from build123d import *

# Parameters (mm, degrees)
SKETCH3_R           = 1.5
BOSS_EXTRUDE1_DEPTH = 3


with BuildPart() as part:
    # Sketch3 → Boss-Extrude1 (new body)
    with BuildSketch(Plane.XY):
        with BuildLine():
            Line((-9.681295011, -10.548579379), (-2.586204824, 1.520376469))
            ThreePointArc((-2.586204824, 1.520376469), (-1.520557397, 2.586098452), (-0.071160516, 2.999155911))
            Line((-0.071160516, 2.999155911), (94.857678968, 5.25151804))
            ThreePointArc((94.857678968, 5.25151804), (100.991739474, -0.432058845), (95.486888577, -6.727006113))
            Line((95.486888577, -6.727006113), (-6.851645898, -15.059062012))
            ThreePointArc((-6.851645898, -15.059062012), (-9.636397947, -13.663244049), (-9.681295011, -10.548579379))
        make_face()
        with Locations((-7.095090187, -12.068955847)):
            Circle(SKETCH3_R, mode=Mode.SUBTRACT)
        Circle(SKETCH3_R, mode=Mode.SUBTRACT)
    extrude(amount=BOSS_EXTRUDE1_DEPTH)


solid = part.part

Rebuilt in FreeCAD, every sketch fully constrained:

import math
import FreeCAD as App
import Part
import Sketcher
from FreeCAD import Vector
Q = App.Units.Quantity

doc = App.newDocument("Part")
body = doc.addObject("PartDesign::Body", "Body")

# Sketch on XY plane
sketch1 = body.newObject("Sketcher::SketchObject", "Sketch")
sketch1.AttachmentSupport = (doc.getObject("XY_Plane"), [""])
sketch1.MapMode = "FlatFace"
sketch1.addGeometry([
    Part.LineSegment(Vector(-2.586205, 1.520376, 0), Vector(-9.681295, -10.548579, 0)),  # 0
    Part.ArcOfCircle(Part.Circle(Vector(-7.09509, -12.068956, 0), Vector(0, 0, 1), 3), math.radians(149.549608), math.radians(274.654561)),  # 1
    Part.LineSegment(Vector(-6.851646, -15.059062, 0), Vector(95.486889, -6.727006, 0)),  # 2
    Part.ArcOfCircle(Part.Circle(Vector(95, -0.746794, 0), Vector(0, 0, 1), 6), math.radians(-85.345439), math.radians(91.359193)),  # 3
    Part.LineSegment(Vector(94.857679, 5.251518, 0), Vector(-0.071161, 2.999156, 0)),  # 4
    Part.ArcOfCircle(Part.Circle(Vector(0, 0, 0), Vector(0, 0, 1), 3), math.radians(91.359193), math.radians(149.549608)),  # 5
    Part.Circle(Vector(-7.09509, -12.068956, 0), Vector(0, 0, 1), 1.5),  # 6
    Part.Circle(Vector(0, 0, 0), Vector(0, 0, 1), 1.5),  # 7
], False)
sketch1.addConstraint([
    Sketcher.Constraint("Tangent", 0, 2, 1, 1),
    Sketcher.Constraint("Tangent", 1, 2, 2, 1),
    Sketcher.Constraint("Tangent", 2, 2, 3, 1),
    Sketcher.Constraint("Tangent", 3, 2, 4, 1),
    Sketcher.Constraint("Tangent", 4, 2, 5, 1),
    Sketcher.Constraint("Tangent", 5, 2, 0, 1),
    Sketcher.Constraint("Coincident", 5, 3, -1, 1),
    Sketcher.Constraint("Coincident", 7, 3, -1, 1),
    Sketcher.Constraint("Coincident", 6, 3, 1, 3),
    Sketcher.Constraint("Equal", 1, 5),
    Sketcher.Constraint("Equal", 6, 7),
    Sketcher.Constraint("Diameter", 6, Q("3 mm")),
    Sketcher.Constraint("Radius", 1, Q("3 mm")),
    Sketcher.Constraint("Radius", 3, Q("6 mm")),
    Sketcher.Constraint("Distance", 0, Q("14 mm")),
    Sketcher.Constraint("DistanceX", -1, 1, 3, 3, Q("95 mm")),
    Sketcher.Constraint("Distance", 2, Q("102.677158 mm")),
    Sketcher.Constraint("DistanceX", 1, 3, -1, 1, Q("7.09509 mm")),
])
pad1 = body.newObject("PartDesign::Pad", "Pad")
pad1.Profile = sketch1
pad1.Length = 3

doc.recompute()
